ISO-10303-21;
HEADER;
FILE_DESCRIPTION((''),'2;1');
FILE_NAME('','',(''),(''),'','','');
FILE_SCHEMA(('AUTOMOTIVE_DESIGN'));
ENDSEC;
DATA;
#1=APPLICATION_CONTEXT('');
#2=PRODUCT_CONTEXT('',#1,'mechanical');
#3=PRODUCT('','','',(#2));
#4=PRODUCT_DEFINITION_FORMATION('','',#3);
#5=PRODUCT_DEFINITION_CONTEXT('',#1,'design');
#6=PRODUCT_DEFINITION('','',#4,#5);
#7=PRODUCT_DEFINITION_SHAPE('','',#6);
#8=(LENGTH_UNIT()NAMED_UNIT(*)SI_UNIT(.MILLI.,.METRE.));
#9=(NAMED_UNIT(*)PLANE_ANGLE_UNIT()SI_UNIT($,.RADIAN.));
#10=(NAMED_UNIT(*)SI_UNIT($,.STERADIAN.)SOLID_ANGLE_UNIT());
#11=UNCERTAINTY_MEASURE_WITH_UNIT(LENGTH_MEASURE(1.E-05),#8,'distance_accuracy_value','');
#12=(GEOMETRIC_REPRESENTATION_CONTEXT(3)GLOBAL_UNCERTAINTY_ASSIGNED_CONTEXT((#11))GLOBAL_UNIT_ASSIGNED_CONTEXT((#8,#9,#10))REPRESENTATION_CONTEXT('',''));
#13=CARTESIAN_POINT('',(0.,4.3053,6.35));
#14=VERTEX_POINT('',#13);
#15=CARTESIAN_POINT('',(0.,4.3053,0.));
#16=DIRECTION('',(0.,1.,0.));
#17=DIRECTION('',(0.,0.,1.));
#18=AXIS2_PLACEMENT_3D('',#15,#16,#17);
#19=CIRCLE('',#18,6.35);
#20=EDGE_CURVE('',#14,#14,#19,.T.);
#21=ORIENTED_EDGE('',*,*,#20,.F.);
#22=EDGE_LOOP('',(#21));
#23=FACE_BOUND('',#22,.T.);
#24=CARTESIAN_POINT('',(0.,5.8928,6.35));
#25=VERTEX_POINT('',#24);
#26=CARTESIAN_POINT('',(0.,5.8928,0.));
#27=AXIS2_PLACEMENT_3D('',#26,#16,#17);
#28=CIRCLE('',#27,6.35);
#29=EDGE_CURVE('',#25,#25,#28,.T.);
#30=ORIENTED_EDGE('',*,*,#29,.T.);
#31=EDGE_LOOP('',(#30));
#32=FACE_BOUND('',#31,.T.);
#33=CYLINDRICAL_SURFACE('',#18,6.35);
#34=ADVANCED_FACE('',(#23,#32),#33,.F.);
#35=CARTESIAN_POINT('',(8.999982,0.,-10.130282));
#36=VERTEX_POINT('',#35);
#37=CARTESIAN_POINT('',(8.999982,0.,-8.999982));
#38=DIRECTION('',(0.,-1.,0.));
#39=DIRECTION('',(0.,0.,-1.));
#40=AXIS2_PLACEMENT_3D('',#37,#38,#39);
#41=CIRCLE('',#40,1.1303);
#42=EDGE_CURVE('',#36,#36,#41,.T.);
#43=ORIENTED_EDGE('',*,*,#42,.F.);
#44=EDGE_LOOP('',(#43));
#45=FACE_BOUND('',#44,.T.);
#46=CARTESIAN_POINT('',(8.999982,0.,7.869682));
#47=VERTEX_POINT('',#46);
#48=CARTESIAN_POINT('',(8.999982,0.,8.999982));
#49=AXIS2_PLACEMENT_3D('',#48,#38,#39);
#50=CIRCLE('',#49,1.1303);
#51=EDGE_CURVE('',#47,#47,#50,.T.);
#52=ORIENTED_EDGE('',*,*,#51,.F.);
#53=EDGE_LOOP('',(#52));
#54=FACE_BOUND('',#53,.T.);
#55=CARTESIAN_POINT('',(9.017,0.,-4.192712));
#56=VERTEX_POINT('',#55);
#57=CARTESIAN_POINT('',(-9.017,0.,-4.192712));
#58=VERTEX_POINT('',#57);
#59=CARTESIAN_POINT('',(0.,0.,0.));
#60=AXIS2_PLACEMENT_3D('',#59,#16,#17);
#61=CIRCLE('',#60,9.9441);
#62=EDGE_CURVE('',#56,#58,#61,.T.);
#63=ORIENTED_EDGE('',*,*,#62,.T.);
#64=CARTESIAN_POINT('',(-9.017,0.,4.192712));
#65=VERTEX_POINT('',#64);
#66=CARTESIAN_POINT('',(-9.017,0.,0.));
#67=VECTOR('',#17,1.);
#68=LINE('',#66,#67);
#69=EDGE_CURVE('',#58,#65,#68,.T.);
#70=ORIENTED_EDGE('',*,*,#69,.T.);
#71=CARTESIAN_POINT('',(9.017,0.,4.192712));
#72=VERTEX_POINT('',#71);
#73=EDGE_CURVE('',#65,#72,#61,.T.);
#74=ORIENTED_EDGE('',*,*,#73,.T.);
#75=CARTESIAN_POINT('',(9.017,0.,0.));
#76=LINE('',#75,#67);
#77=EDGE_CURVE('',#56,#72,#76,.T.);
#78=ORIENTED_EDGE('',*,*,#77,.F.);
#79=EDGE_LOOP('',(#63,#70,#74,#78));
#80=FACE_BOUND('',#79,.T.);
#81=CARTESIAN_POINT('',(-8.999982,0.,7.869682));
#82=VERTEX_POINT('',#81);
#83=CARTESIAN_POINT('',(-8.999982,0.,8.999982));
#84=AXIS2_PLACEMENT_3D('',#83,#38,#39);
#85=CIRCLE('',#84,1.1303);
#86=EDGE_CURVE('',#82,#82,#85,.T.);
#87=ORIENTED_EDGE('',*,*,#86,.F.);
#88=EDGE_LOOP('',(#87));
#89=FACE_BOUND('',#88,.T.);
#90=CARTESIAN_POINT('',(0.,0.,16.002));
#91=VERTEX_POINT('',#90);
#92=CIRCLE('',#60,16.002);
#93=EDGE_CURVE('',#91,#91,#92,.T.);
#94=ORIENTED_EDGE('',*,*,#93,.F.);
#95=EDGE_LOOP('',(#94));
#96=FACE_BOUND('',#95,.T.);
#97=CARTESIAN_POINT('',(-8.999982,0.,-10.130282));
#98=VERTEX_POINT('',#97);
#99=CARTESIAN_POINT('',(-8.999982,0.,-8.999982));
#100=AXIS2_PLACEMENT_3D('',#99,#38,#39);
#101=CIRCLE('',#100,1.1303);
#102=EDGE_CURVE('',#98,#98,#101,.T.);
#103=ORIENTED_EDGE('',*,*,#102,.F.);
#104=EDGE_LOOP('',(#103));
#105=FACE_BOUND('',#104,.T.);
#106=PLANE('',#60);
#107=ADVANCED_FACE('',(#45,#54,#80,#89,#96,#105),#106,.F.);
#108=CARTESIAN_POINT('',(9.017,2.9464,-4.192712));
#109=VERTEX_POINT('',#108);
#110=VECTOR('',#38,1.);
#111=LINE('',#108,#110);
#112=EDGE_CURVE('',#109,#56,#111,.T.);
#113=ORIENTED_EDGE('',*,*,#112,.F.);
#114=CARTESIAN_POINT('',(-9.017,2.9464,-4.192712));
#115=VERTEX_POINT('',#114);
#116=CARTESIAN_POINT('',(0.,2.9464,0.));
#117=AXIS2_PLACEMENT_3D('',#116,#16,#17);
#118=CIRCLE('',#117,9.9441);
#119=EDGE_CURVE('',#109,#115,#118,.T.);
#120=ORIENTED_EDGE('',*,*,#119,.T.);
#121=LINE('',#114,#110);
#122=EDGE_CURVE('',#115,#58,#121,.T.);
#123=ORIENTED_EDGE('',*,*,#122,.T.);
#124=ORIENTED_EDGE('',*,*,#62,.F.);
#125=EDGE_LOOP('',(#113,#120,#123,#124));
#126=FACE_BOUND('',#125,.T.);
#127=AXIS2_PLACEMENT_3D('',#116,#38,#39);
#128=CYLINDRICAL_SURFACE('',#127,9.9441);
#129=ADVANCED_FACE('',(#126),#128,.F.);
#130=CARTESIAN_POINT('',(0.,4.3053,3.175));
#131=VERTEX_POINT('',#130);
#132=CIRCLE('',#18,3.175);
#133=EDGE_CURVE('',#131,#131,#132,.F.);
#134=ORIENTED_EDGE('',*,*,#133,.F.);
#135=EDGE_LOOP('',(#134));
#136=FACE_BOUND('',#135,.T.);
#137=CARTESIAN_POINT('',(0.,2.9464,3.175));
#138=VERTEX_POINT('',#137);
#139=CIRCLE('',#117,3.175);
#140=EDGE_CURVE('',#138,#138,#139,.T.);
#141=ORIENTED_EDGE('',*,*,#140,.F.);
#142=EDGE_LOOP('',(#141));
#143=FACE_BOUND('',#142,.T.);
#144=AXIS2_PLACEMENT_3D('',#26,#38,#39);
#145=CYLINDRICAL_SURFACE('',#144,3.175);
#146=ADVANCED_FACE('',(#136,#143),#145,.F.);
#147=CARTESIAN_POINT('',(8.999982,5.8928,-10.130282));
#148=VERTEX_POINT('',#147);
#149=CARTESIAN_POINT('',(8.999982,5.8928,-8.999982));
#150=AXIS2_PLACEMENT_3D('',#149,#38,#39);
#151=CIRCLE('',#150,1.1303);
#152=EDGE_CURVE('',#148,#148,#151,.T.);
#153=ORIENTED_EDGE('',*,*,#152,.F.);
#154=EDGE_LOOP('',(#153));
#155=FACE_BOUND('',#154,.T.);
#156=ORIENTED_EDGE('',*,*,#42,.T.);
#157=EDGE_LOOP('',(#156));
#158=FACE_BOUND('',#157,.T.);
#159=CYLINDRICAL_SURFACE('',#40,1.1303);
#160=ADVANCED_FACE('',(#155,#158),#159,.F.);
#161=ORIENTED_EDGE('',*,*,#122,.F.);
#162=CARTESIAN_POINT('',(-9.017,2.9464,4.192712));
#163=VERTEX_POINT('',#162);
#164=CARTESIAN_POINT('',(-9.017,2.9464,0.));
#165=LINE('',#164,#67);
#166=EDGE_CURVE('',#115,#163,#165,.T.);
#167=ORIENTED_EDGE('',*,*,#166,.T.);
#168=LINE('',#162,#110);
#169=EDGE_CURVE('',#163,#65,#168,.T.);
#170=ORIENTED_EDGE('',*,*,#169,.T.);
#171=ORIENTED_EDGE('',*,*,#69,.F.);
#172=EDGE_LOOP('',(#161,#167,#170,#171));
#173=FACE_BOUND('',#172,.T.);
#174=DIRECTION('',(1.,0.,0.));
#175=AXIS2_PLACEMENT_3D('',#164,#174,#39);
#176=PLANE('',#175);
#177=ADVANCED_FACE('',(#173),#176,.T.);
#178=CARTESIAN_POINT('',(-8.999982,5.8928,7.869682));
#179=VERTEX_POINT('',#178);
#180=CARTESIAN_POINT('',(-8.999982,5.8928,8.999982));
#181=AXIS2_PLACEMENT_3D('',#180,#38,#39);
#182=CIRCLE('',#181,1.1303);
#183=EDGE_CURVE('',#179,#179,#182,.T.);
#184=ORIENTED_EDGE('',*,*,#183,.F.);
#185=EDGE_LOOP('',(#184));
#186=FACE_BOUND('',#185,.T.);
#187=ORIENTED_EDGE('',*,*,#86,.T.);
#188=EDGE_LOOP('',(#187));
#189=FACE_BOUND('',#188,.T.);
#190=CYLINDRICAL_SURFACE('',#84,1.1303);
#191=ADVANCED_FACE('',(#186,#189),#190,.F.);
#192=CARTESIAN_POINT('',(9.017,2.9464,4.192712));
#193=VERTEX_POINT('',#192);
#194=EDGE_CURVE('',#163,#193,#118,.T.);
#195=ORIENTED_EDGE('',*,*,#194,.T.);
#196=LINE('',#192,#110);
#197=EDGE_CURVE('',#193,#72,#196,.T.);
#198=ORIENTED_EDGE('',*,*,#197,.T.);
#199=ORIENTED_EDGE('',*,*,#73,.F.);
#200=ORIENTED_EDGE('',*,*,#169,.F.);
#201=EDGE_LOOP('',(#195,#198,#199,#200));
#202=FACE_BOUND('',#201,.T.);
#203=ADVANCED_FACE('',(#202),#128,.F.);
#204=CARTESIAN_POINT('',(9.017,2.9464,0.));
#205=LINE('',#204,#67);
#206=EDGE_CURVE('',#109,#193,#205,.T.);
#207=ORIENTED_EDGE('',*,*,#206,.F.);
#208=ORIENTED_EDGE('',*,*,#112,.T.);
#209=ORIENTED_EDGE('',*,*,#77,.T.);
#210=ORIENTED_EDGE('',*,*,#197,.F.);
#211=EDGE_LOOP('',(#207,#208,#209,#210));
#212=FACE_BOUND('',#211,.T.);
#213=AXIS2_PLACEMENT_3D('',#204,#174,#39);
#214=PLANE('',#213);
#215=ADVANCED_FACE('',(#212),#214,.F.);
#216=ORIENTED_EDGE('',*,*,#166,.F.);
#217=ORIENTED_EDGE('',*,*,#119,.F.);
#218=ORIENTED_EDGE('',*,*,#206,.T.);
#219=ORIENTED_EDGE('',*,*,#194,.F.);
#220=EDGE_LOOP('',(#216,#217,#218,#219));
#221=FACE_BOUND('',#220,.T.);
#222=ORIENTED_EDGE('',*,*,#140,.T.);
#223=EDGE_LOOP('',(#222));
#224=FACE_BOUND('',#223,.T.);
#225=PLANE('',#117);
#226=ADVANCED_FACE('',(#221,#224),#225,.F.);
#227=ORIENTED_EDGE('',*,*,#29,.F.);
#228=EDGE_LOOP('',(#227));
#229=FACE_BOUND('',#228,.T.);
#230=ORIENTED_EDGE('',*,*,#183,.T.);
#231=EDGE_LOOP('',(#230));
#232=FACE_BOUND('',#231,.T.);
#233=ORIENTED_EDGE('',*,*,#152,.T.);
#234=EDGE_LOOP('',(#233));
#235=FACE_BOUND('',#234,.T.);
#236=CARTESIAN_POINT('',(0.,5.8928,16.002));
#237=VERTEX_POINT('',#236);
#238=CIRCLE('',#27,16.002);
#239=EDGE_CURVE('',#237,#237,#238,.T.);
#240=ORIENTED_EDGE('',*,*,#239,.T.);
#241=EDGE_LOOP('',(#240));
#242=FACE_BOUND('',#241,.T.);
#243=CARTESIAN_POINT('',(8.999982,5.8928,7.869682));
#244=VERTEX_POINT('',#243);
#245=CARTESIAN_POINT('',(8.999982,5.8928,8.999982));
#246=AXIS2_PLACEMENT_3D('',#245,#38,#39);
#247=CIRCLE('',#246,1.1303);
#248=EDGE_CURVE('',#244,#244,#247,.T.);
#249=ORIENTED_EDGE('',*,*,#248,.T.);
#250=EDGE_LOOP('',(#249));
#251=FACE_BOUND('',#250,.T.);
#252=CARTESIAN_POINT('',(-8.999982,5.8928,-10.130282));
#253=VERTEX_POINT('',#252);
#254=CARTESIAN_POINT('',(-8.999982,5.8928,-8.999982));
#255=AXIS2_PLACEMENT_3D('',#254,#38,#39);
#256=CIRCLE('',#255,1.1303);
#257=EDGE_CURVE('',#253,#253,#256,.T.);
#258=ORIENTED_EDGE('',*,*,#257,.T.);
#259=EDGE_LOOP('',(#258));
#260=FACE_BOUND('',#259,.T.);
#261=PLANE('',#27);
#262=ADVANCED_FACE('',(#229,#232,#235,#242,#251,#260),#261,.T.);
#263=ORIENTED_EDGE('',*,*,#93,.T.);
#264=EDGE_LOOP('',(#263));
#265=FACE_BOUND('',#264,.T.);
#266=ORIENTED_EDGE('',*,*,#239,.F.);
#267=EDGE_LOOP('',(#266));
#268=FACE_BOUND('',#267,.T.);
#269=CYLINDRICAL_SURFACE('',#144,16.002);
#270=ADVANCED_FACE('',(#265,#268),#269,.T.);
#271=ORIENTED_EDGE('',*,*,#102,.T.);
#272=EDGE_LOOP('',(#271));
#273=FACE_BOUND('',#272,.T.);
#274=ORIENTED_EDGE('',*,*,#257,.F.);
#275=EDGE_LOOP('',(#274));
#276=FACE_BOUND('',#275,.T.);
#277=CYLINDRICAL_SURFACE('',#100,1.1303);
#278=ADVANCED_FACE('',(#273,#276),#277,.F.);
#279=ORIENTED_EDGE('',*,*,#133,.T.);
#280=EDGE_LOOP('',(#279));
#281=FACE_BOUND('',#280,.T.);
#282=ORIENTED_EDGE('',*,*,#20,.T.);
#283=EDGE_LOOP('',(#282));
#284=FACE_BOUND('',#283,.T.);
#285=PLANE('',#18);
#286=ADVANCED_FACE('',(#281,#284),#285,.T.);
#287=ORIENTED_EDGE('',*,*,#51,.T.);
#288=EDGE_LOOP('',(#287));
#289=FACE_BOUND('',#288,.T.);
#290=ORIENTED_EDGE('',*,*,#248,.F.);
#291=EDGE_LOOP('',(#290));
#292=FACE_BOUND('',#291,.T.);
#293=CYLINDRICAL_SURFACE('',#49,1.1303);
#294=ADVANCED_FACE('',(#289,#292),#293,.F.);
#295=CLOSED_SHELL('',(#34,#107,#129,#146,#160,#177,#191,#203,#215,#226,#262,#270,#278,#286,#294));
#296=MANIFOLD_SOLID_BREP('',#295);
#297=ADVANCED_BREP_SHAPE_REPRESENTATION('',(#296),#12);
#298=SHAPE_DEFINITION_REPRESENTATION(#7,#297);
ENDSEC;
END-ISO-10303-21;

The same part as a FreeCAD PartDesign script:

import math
import FreeCAD as App
import Part
import Sketcher
Q = App.Units.Quantity

doc = App.newDocument("Part")
body = doc.addObject("PartDesign::Body", "Body")

sketch1 = body.newObject("Sketcher::SketchObject", "Sketch")
sketch1.AttachmentSupport = (doc.getObject("XZ_Plane"), [""])
sketch1.MapMode = "FlatFace"
sketch1.addGeometry(Part.Circle(App.Vector(0, 0, 0), App.Vector(0, 0, 1), 16), False)
sketch1.addConstraint([
    Sketcher.Constraint("Coincident", 0, 3, -1, 1),
    Sketcher.Constraint("Diameter", 0, Q("1.26 in")),
])
pad1 = body.newObject("PartDesign::Pad", "Pad")
pad1.Profile = sketch1
pad1.Length = Q("0.232 in")
pad1.Reversed = True

sketch2 = body.newObject("Sketcher::SketchObject", "Sketch001")
sketch2.AttachmentSupport = (doc.getObject("XZ_Plane"), [""])
sketch2.MapMode = "FlatFace"
sketch2.addGeometry([
    Part.ArcOfCircle(Part.Circle(App.Vector(0, 0, 0), App.Vector(0, 0, 1), 10), math.radians(-155), math.radians(-25)),
    Part.LineSegment(App.Vector(-9, -4, 0), App.Vector(-9, 4, 0)),
    Part.ArcOfCircle(Part.Circle(App.Vector(0, 0, 0), App.Vector(0, 0, 1), 10), math.radians(25), math.radians(155)),
    Part.LineSegment(App.Vector(9, 4, 0), App.Vector(9, -4, 0)),
], False)
sketch2.addConstraint([
    Sketcher.Constraint("Coincident", 0, 1, 1, 1),
    Sketcher.Constraint("Coincident", 1, 2, 2, 2),
    Sketcher.Constraint("Coincident", 2, 1, 3, 1),
    Sketcher.Constraint("Coincident", 3, 2, 0, 2),
    Sketcher.Constraint("Vertical", 1),
    Sketcher.Constraint("Vertical", 3),
    Sketcher.Constraint("Coincident", 0, 3, -1, 1),
    Sketcher.Constraint("Coincident", 2, 3, -1, 1),
    Sketcher.Constraint("Equal", 0, 2),
    Sketcher.Constraint("Horizontal", 1, 2, 2, 1),
    Sketcher.Constraint("Radius", 0, Q("0.3915 in")),
    Sketcher.Constraint("DistanceX", 1, 2, 2, 1, Q("0.71 in")),
])
pocket1 = body.newObject("PartDesign::Pocket", "Pocket")
pocket1.Profile = sketch2
pocket1.Length = Q("0.116 in")

sketch3 = body.newObject("Sketcher::SketchObject", "Sketch002")
sketch3.AttachmentSupport = (doc.getObject("XZ_Plane"), [""])
sketch3.MapMode = "FlatFace"
sketch3.addGeometry([
    Part.Circle(App.Vector(-9, 9, 0), App.Vector(0, 0, 1), 1.1),
    Part.Circle(App.Vector(9, 9, 0), App.Vector(0, 0, 1), 1.1),
    Part.Circle(App.Vector(9, -9, 0), App.Vector(0, 0, 1), 1.1),
    Part.Circle(App.Vector(-9, -9, 0), App.Vector(0, 0, 1), 1.1),
], False)
sketch3.addConstraint([
    Sketcher.Constraint("Equal", 0, 1),
    Sketcher.Constraint("Equal", 1, 2),
    Sketcher.Constraint("Equal", 2, 3),
    Sketcher.Constraint("Symmetric", 0, 3, 2, 3, -1, 1),
    Sketcher.Constraint("Symmetric", 1, 3, 3, 3, -1, 1),
    Sketcher.Constraint("Symmetric", 0, 3, 1, 3, -2),
    Sketcher.Constraint("Diameter", 0, Q("0.089 in")),
    Sketcher.Constraint("DistanceX", 0, 3, -1, 1, 8.999982),
    Sketcher.Constraint("DistanceY", -1, 1, 0, 3, 8.999982),
])
doc.recompute()
hole = body.newObject("PartDesign::Hole", "Hole")
hole.Profile = sketch3
hole.ThreadType = "None"
hole.Diameter = Q("0.089 in")
hole.DepthType = "ThroughAll"

sketch4 = body.newObject("Sketcher::SketchObject", "Sketch003")
sketch4.AttachmentSupport = (doc.getObject("XZ_Plane"), [""])
sketch4.MapMode = "FlatFace"
sketch4.addGeometry([
    Part.ArcOfCircle(Part.Circle(App.Vector(0, 0, 0), App.Vector(0, 0, 1), 3.2), math.radians(0), math.radians(135)),
    Part.ArcOfCircle(Part.Circle(App.Vector(0, 0, 0), App.Vector(0, 0, 1), 3.2), math.radians(135), math.radians(315)),
    Part.ArcOfCircle(Part.Circle(App.Vector(0, 0, 0), App.Vector(0, 0, 1), 3.2), math.radians(-45), math.radians(0)),
], False)
sketch4.addConstraint([
    Sketcher.Constraint("Tangent", 0, 2, 1, 1),
    Sketcher.Constraint("Tangent", 1, 2, 2, 1),
    Sketcher.Constraint("Tangent", 2, 2, 0, 1),
    Sketcher.Constraint("Coincident", 0, 3, -1, 1),
    Sketcher.Constraint("PointOnObject", 2, 2, -1),
    Sketcher.Constraint("Radius", 0, Q("0.125 in")),
    Sketcher.Constraint("DistanceX", 0, 2, 1, 2, 4.490128),
    Sketcher.Constraint("DistanceX", 0, 2, -1, 1, 2.245064),
])
pocket2 = body.newObject("PartDesign::Pocket", "Pocket001")
pocket2.Profile = sketch4
pocket2.Type = "ThroughAll"

sketch5 = body.newObject("Sketcher::SketchObject", "Sketch004")
sketch5.AttachmentSupport = (doc.getObject("XZ_Plane"), [""])
sketch5.MapMode = "FlatFace"
sketch5.AttachmentOffset = App.Placement(App.Vector(0, 0, -0.232 * 25.4), App.Rotation())
sketch5.addGeometry(Part.Circle(App.Vector(0, 0, 0), App.Vector(0, 0, 1), 6), False)
sketch5.addConstraint([
    Sketcher.Constraint("Coincident", 0, 3, -1, 1),
    Sketcher.Constraint("Diameter", 0, Q("0.5 in")),
])
pocket3 = body.newObject("PartDesign::Pocket", "Pocket002")
pocket3.Profile = sketch5
pocket3.Length = Q("0.0625 in")
pocket3.Reversed = True

doc.recompute()
